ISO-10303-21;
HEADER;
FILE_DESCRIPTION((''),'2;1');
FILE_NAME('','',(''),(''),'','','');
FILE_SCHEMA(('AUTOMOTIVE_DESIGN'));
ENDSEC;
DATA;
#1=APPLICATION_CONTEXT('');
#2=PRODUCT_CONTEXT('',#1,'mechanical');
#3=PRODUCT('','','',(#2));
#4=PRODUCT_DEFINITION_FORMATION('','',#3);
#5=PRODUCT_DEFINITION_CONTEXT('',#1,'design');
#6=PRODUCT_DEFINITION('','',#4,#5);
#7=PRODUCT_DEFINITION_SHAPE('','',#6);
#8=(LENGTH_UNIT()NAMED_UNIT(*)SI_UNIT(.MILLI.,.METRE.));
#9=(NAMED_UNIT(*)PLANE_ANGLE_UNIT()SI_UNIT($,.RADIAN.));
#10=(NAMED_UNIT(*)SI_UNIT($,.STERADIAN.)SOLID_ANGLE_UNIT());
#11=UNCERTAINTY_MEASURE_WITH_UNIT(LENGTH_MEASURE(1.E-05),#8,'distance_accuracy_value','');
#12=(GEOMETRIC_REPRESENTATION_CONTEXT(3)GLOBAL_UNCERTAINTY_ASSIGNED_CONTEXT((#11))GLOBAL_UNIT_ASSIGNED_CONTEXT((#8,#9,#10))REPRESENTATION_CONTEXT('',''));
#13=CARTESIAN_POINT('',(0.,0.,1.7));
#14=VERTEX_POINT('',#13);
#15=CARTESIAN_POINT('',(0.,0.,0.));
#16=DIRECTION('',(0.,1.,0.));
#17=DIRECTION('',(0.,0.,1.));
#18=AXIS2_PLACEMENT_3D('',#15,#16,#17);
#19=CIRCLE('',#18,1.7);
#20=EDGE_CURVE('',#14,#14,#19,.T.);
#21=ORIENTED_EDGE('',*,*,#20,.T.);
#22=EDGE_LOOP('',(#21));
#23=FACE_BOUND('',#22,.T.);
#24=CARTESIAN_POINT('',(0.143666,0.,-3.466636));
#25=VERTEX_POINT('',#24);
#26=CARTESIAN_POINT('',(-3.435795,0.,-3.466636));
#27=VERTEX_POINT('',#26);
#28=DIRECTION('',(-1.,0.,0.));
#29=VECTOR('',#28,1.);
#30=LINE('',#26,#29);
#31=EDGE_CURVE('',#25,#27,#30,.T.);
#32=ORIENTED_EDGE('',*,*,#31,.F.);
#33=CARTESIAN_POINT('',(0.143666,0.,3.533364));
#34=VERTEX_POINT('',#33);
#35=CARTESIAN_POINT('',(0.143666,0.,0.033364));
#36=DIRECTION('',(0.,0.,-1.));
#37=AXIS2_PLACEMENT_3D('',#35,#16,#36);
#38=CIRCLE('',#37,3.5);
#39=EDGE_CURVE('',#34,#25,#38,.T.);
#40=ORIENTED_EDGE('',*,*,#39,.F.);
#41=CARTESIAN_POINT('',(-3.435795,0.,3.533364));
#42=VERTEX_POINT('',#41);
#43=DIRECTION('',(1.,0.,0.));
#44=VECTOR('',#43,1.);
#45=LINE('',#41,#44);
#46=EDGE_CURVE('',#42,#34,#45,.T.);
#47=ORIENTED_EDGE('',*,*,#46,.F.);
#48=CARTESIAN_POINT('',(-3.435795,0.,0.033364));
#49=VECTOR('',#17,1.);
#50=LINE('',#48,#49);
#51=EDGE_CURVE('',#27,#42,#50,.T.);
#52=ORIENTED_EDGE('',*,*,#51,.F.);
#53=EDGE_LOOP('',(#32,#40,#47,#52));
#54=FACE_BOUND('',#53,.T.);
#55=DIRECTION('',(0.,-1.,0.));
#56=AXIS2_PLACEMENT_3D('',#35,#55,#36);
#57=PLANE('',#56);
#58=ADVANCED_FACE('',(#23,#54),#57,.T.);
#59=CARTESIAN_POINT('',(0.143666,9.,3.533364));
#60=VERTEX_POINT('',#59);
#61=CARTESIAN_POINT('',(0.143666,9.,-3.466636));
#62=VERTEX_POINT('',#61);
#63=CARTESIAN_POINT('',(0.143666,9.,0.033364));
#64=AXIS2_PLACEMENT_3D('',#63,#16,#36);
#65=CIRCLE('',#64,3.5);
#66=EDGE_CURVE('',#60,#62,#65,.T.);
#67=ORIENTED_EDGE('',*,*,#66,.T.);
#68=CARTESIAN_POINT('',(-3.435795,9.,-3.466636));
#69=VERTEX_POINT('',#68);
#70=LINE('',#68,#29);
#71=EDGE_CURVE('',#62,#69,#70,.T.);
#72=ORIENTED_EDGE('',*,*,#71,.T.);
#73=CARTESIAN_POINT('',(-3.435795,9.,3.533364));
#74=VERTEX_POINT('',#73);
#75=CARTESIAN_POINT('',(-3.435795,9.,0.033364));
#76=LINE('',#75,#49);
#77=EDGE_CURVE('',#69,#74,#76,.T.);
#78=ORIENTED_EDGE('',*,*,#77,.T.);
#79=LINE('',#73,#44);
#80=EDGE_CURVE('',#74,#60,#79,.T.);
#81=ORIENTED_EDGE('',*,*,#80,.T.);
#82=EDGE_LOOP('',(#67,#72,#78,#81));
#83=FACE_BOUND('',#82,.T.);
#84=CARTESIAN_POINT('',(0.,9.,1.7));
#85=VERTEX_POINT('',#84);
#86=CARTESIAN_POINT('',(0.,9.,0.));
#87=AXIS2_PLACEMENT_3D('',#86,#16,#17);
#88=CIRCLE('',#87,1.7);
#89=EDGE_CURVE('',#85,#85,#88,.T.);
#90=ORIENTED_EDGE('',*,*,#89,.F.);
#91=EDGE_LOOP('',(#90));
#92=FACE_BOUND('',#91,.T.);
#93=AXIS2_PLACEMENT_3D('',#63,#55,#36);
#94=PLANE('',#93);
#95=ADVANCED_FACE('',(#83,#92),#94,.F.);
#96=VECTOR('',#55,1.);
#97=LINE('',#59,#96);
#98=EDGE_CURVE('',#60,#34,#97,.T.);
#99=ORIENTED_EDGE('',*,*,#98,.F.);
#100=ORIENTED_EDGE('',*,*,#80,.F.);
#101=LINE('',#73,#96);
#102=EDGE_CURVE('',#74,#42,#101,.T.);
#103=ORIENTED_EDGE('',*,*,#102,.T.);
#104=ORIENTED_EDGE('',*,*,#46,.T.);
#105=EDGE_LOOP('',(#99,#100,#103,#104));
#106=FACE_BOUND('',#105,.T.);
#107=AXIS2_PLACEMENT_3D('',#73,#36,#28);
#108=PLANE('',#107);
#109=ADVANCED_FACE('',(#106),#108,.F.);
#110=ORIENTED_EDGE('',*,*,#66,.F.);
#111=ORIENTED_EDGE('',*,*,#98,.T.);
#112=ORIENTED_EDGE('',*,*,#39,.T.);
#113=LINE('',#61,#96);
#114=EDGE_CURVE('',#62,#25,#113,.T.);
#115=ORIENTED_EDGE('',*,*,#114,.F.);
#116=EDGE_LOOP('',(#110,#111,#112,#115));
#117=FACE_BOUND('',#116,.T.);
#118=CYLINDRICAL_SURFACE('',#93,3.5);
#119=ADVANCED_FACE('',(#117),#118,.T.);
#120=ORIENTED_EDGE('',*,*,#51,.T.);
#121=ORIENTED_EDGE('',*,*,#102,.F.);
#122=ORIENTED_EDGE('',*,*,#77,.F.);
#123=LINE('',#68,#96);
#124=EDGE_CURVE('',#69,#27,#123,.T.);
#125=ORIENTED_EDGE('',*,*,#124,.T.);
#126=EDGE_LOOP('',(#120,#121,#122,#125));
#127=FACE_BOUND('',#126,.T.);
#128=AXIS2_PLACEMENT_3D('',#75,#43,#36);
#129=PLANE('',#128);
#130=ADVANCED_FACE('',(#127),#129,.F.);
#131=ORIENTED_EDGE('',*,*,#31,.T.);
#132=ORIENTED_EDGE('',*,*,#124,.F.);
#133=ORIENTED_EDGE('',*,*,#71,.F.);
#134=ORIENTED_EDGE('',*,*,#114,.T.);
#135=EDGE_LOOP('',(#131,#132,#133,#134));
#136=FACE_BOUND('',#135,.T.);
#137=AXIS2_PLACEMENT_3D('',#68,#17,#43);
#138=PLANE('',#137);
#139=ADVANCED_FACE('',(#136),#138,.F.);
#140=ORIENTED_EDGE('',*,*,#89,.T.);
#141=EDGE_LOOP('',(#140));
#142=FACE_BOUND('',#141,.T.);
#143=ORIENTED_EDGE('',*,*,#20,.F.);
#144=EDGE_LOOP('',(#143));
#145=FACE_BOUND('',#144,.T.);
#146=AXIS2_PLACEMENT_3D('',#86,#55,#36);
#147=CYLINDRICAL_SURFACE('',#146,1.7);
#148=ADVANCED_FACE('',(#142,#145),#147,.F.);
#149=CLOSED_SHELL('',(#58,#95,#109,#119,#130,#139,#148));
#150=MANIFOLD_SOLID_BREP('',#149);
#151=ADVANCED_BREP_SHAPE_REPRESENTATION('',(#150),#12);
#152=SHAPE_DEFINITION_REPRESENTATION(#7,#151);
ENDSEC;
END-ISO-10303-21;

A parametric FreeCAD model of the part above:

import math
import FreeCAD as App
import Part
import Sketcher
from FreeCAD import Vector

doc = App.newDocument("Part")
body = doc.addObject("PartDesign::Body", "Body")

# Sketch on XZ plane
sketch1 = body.newObject("Sketcher::SketchObject", "Sketch")
sketch1.AttachmentSupport = (doc.getObject("XZ_Plane"), [""])
sketch1.MapMode = "FlatFace"
sketch1.addGeometry([
    Part.LineSegment(Vector(0.143666, -3.466636, 0), Vector(-3.435795, -3.466636, 0)),  # 0
    Part.LineSegment(Vector(-3.435795, -3.466636, 0), Vector(-3.435795, 3.533364, 0)),  # 1
    Part.LineSegment(Vector(-3.435795, 3.533364, 0), Vector(0.143666, 3.533364, 0)),  # 2
    Part.ArcOfCircle(Part.Circle(Vector(0.143666, 0.033364, 0), Vector(0, 0, 1), 3.5), math.radians(-90), math.radians(90)),  # 3
    Part.Circle(Vector(0, 0, 0), Vector(0, 0, 1), 1.7),  # 4
], False)
sketch1.addConstraint([
    Sketcher.Constraint("Coincident", 0, 2, 1, 1),
    Sketcher.Constraint("Coincident", 1, 2, 2, 1),
    Sketcher.Constraint("Tangent", 2, 2, 3, 2),
    Sketcher.Constraint("Tangent", 3, 1, 0, 1),
    Sketcher.Constraint("Horizontal", 0),
    Sketcher.Constraint("Vertical", 1),
    Sketcher.Constraint("Horizontal", 2),
    Sketcher.Constraint("Coincident", 4, 3, -1, 1),
    Sketcher.Constraint("Diameter", 4, 3.4),
    Sketcher.Constraint("Radius", 3, 3.5),
    Sketcher.Constraint("DistanceX", 0, 2, 0, 1, 3.579461),
    Sketcher.Constraint("DistanceX", -1, 1, 3, 3, 0.143666),
    Sketcher.Constraint("DistanceY", -1, 1, 3, 3, 0.033364),
])
pad1 = body.newObject("PartDesign::Pad", "Pad")
pad1.Profile = sketch1
pad1.Length = 9
pad1.Reversed = True

doc.recompute()
